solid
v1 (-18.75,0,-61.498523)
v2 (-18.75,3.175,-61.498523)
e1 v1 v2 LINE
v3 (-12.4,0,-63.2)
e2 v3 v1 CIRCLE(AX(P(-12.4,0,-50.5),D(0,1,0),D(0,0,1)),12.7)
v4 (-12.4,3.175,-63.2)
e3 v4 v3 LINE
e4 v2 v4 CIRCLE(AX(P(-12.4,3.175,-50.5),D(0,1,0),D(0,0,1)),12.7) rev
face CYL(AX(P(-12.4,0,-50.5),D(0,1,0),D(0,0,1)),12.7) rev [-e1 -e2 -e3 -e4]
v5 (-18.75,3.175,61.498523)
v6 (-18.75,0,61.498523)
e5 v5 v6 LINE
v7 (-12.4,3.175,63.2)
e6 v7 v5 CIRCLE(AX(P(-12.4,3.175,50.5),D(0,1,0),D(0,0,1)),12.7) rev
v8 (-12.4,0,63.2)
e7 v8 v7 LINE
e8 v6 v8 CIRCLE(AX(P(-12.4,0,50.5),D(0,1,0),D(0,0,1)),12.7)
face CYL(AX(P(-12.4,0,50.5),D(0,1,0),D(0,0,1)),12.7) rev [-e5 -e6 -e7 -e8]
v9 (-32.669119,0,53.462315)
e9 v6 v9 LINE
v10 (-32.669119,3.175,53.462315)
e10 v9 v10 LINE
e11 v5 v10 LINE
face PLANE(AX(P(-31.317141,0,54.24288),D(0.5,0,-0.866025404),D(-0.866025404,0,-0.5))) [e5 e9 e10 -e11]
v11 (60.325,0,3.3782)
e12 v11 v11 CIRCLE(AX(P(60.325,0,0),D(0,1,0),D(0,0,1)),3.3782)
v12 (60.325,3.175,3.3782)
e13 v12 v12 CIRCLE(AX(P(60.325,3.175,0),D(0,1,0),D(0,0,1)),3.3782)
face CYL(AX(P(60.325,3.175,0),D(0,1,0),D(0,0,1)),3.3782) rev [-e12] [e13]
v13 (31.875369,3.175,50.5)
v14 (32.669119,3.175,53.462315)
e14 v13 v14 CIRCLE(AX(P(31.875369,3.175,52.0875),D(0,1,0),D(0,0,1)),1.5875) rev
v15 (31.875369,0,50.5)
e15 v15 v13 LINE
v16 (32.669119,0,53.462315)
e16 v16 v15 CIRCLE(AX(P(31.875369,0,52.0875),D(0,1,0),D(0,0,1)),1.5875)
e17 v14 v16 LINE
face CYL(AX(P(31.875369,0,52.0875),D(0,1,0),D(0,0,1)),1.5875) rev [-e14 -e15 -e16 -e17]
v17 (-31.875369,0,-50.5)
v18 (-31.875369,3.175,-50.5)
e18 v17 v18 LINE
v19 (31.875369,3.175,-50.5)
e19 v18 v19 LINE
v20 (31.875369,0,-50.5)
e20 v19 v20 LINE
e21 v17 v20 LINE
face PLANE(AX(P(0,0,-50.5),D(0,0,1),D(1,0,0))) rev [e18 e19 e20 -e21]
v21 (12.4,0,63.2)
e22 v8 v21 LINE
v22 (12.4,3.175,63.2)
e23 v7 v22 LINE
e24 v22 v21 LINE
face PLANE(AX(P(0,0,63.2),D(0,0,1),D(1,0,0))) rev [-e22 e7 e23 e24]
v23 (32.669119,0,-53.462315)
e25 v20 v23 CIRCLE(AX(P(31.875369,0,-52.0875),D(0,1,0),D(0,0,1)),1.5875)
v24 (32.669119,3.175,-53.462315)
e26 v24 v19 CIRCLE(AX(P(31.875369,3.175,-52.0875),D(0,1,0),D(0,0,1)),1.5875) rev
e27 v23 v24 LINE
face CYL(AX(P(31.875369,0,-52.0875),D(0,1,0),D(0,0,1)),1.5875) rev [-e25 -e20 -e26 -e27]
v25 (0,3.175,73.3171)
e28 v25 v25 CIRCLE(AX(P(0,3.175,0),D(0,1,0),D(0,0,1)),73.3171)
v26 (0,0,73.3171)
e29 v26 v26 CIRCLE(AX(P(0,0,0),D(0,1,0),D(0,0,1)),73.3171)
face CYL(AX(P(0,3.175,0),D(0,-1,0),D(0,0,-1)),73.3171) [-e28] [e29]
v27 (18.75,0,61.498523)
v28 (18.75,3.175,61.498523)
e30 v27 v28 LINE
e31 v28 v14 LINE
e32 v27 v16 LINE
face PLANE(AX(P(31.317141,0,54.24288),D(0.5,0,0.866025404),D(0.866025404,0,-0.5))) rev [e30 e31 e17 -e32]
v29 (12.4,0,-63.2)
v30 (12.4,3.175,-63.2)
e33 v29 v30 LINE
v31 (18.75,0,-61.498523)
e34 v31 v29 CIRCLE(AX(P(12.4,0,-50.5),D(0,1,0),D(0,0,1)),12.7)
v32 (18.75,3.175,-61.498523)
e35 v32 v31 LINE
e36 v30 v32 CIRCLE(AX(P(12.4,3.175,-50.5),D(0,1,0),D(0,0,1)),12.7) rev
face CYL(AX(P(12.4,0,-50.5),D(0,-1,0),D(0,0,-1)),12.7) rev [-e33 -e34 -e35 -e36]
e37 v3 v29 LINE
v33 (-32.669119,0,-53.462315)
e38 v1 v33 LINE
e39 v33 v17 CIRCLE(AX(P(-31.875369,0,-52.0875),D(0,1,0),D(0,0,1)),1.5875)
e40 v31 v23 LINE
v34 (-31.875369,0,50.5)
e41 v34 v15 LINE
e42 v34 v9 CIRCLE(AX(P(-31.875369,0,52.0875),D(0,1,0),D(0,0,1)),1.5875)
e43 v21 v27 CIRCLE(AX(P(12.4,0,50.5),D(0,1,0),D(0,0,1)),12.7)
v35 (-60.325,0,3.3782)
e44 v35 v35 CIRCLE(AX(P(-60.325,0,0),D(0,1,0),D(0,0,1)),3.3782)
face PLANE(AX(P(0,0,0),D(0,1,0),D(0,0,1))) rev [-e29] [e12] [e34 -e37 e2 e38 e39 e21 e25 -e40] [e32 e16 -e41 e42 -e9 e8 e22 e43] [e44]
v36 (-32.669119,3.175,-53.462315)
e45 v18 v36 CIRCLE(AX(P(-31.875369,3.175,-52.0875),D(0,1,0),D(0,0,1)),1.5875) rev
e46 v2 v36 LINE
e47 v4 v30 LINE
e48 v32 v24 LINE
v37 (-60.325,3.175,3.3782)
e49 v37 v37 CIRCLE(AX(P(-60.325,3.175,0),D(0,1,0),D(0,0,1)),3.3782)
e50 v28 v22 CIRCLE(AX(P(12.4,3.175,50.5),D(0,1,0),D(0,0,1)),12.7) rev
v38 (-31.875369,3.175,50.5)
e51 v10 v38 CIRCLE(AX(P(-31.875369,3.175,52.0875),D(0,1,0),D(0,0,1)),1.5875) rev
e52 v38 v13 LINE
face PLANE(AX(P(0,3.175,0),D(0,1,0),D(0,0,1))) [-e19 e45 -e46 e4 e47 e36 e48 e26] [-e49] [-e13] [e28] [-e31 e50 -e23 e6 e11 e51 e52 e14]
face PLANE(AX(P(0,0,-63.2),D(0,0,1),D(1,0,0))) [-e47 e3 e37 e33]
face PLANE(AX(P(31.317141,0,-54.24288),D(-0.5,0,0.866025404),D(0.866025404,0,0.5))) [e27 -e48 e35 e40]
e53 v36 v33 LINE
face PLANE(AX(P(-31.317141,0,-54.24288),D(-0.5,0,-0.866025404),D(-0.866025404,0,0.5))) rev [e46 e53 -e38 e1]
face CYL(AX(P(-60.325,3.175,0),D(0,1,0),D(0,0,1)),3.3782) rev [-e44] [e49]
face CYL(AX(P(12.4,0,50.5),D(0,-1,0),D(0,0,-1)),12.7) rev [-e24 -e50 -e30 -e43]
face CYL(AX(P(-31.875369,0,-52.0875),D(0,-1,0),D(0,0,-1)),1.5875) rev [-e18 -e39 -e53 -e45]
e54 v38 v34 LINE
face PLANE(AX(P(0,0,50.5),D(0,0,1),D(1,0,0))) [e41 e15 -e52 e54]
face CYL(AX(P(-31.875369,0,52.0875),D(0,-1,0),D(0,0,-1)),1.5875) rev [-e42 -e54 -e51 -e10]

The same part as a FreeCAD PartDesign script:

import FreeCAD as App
import Part
import Sketcher
Q = App.Units.Quantity


def edges_at(feature, points):
    """Names of the edges that pass closest to the given points."""
    edges = feature.Shape.Edges
    near = lambda p: min(range(len(edges)), key=lambda i: edges[i].distToShape(Part.Vertex(*p))[0])
    return sorted({f"Edge{near(p) + 1}" for p in points})


def add_polygon(sketch, points):
    """Adds a closed chain of lines whose ends are joined by coincident constraints."""
    first, n = sketch.GeometryCount, len(points)
    for a, b in zip(points, points[1:] + points[:1]):
        sketch.addGeometry(Part.LineSegment(App.Vector(*a, 0), App.Vector(*b, 0)), False)
    for i in range(n):
        sketch.addConstraint(Sketcher.Constraint("Coincident", first + i, 2, first + (i + 1) % n, 1))

doc = App.newDocument("Part")
params = doc.addObject("Spreadsheet::Sheet", "Params")
for row, (alias, value) in enumerate([
    ("sketch1_diameter", "5.773 in"),
    ("pad1_length", "0.125 in"),
    ("sketch2_diameter", "0.266 in"),
    ("hole_diameter", "0.266 in"),
    ("sketch3_length", "1 in"),
    ("pocket1_length", "5.175 mm"),
    ("fillet_radius", "0.5 in"),
    ("fillet2_radius", "0.0625 in"),
    ("fillet3_radius", "0.5 in"),
    ("fillet4_radius", "0.0625 in"),
], start=1):
    params.set(f"A{row}", alias)
    params.set(f"B{row}", "=" + value)
    params.setAlias(f"B{row}", alias)

body = doc.addObject("PartDesign::Body", "Body")

# Sketch on XZ plane
sketch1 = body.newObject("Sketcher::SketchObject", "Sketch")
sketch1.AttachmentSupport = (doc.getObject("XZ_Plane"), [""])
sketch1.MapMode = "FlatFace"
sketch1.addGeometry(Part.Circle(App.Vector(0, 0, 0), App.Vector(0, 0, 1), 73), False)
sketch1.addConstraint([
    Sketcher.Constraint("Coincident", 0, 3, -1, 1),
    Sketcher.Constraint("Diameter", 0, Q("5.773 in")),
])
sketch1.setExpression("Constraints[1]", "Params.sketch1_diameter")
pad1 = body.newObject("PartDesign::Pad", "Pad")
pad1.Profile = sketch1
pad1.setExpression("Length", "Params.pad1_length")
pad1.Reversed = True

# Sketch on XZ plane
sketch2 = body.newObject("Sketcher::SketchObject", "Sketch001")
sketch2.AttachmentSupport = (doc.getObject("XZ_Plane"), [""])
sketch2.MapMode = "FlatFace"
sketch2.AttachmentOffset = App.Placement(App.Vector(0, 0, -0.125 * 25.4), App.Rotation())
sketch2.addGeometry([
    Part.Circle(App.Vector(-60.3, 0, 0), App.Vector(0, 0, 1), 3.4),
    Part.Circle(App.Vector(60.3, 0, 0), App.Vector(0, 0, 1), 3.4),
], False)
sketch2.addConstraint([
    Sketcher.Constraint("Equal", 0, 1),
    Sketcher.Constraint("Symmetric", 0, 3, 1, 3, -1, 1),
    Sketcher.Constraint("PointOnObject", 0, 3, -1),
    Sketcher.Constraint("Diameter", 0, Q("0.266 in")),
    Sketcher.Constraint("DistanceX", 0, 3, 1, 3, Q("4.75 in")),
])
sketch2.setExpression("Constraints[3]", "Params.sketch2_diameter")
doc.recompute()
hole = body.newObject("PartDesign::Hole", "Hole")
hole.Profile = sketch2
hole.ThreadType = "None"
hole.setExpression("Diameter", "Params.hole_diameter")
hole.DepthType = "ThroughAll"
hole.Reversed = True

# Sketch on XZ plane
sketch3 = body.newObject("Sketcher::SketchObject", "Sketch002")
sketch3.AttachmentSupport = (doc.getObject("XZ_Plane"), [""])
sketch3.MapMode = "FlatFace"
sketch3.AttachmentOffset = App.Placement(App.Vector(0, 0, 1), App.Rotation())
add_polygon(sketch3, [(-16, -63), (-38, -50), (38, -50), (16, -63)])  # lines 0-3
sketch3.addConstraint([
    Sketcher.Constraint("Horizontal", 1),
    Sketcher.Constraint("Horizontal", 3),
    Sketcher.Constraint("Equal", 0, 2),
    Sketcher.Constraint("Distance", 0, Q("1 in")),
    Sketcher.Constraint("Angle", 0, Q("150 deg")),
    Sketcher.Constraint("DistanceX", 1, 1, 1, 2, 75.6),
    Sketcher.Constraint("DistanceX", 0, 2, -1, 1, 37.8),
    Sketcher.Constraint("DistanceY", 0, 2, -1, 1, 50.5),
])
sketch3.setExpression("Constraints[7]", "Params.sketch3_length")
pocket1 = body.newObject("PartDesign::Pocket", "Pocket")
pocket1.Profile = sketch3
pocket1.setExpression("Length", "Params.pocket1_length")
doc.recompute()

fillet = body.newObject("PartDesign::Fillet", "Fillet")
fillet.Base = (pocket1, edges_at(pocket1, [(-15.803, 1.587, -63.2), (15.803, 1.587, -63.2)]))
fillet.setExpression("Radius", "Params.fillet_radius")
doc.recompute()

fillet2 = body.newObject("PartDesign::Fillet", "Fillet001")
fillet2.Base = (fillet, edges_at(fillet, [(-37.8, 1.587, -50.5), (37.8, 1.587, -50.5)]))
fillet2.setExpression("Radius", "Params.fillet2_radius")
doc.recompute()

mirrored = body.newObject("PartDesign::Mirrored", "Mirrored")
mirrored.Originals = [pocket1]
mirrored.MirrorPlane = (doc.getObject("XY_Plane"), [""])
body.Tip = mirrored
doc.recompute()

fillet3 = body.newObject("PartDesign::Fillet", "Fillet002")
fillet3.Base = (mirrored, edges_at(mirrored, [(-15.803, 1.587, 63.2), (15.803, 1.587, 63.2)]))
fillet3.setExpression("Radius", "Params.fillet3_radius")
doc.recompute()

fillet4 = body.newObject("PartDesign::Fillet", "Fillet003")
fillet4.Base = (fillet3, edges_at(fillet3, [(-37.8, 1.587, 50.5), (37.8, 1.587, 50.5)]))
fillet4.setExpression("Radius", "Params.fillet4_radius")

doc.recompute()
